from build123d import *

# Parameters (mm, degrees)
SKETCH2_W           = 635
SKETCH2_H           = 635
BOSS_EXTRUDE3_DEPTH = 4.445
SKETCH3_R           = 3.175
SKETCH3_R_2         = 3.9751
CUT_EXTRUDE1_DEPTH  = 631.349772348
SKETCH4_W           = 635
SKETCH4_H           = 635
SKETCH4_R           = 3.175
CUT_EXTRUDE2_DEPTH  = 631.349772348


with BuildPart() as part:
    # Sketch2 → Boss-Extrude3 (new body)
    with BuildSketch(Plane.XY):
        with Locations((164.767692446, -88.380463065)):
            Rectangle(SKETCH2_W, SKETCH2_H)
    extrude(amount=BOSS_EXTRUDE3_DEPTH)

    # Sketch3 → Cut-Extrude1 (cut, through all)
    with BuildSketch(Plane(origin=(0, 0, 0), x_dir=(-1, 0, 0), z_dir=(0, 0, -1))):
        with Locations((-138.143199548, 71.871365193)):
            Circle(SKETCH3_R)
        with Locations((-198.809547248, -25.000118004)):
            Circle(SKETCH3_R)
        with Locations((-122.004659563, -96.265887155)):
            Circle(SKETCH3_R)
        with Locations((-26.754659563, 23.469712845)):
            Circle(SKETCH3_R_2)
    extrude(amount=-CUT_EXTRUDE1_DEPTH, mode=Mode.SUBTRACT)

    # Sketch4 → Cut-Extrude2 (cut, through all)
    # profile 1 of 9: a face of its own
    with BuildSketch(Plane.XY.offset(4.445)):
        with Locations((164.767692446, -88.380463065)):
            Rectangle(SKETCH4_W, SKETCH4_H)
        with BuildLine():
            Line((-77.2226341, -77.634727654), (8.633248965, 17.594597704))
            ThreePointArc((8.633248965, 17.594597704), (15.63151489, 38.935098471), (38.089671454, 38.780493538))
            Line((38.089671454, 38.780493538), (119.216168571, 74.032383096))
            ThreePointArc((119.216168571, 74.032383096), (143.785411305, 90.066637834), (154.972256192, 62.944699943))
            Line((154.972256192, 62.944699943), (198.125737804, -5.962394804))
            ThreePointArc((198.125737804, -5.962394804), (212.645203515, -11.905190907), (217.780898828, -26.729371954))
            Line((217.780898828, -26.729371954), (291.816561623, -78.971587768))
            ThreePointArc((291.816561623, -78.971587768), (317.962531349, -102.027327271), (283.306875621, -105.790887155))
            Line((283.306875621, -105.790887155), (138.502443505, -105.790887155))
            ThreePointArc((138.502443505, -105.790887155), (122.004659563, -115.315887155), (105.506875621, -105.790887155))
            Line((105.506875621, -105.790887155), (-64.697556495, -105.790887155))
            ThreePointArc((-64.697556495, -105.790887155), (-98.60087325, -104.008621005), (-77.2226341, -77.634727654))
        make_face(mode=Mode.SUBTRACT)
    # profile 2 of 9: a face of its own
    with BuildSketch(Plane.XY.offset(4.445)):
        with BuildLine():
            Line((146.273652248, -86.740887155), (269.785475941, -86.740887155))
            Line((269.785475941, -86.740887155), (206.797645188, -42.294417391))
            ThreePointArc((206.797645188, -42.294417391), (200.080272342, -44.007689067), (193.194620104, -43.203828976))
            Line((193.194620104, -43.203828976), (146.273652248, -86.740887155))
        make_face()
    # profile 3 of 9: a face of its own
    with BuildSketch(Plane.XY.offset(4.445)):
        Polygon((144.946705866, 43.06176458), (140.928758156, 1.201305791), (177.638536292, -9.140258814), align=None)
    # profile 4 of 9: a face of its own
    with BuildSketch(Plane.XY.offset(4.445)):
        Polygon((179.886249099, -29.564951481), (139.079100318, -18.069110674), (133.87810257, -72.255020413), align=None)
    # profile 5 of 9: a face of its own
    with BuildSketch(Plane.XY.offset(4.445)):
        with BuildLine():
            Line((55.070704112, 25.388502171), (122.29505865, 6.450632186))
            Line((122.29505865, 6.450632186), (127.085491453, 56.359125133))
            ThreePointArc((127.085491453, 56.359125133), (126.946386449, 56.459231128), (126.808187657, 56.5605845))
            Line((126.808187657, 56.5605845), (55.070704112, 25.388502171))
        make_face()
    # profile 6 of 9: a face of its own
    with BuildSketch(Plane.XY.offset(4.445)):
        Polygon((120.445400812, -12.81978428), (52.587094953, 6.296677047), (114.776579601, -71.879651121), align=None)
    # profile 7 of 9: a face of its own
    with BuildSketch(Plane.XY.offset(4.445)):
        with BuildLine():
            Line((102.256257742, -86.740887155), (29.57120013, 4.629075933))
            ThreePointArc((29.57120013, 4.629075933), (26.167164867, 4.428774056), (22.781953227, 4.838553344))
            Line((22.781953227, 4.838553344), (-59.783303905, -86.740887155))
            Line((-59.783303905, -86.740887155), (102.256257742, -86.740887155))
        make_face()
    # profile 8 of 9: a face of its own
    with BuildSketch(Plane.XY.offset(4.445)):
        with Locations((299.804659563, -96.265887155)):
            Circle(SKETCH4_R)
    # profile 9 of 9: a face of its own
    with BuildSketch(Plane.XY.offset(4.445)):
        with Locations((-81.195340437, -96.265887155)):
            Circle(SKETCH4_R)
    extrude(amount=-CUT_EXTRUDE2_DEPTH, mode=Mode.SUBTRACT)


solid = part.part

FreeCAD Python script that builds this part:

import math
import FreeCAD as App
import Part
import Sketcher
Q = App.Units.Quantity


def add_polygon(sketch, points):
    """Adds a closed chain of lines whose ends are joined by coincident constraints."""
    first, n = sketch.GeometryCount, len(points)
    for a, b in zip(points, points[1:] + points[:1]):
        sketch.addGeometry(Part.LineSegment(App.Vector(*a, 0), App.Vector(*b, 0)), False)
    for i in range(n):
        sketch.addConstraint(Sketcher.Constraint("Coincident", first + i, 2, first + (i + 1) % n, 1))

doc = App.newDocument("Part")
body = doc.addObject("PartDesign::Body", "Body")

sketch1 = body.newObject("Sketcher::SketchObject", "Sketch")
sketch1.AttachmentSupport = (doc.getObject("XY_Plane"), [""])
sketch1.MapMode = "FlatFace"
add_polygon(sketch1, [(-153, 229), (-153, -406), (482, -406), (482, 229)])
sketch1.addConstraint([
    Sketcher.Constraint("Vertical", 0),
    Sketcher.Constraint("Horizontal", 1),
    Sketcher.Constraint("Vertical", 2),
    Sketcher.Constraint("Horizontal", 3),
    Sketcher.Constraint("Equal", 3, 0),
    Sketcher.Constraint("DistanceX", 1, 1, 1, 2, Q("25 in")),
    Sketcher.Constraint("DistanceX", 0, 2, -1, 1, 152.732308),
    Sketcher.Constraint("DistanceY", 0, 2, -1, 1, 405.880463),
])
pad1 = body.newObject("PartDesign::Pad", "Pad")
pad1.Profile = sketch1
pad1.Length = Q("0.175 in")

sketch2 = body.newObject("Sketcher::SketchObject", "Sketch001")
sketch2.AttachmentSupport = (doc.getObject("XY_Plane"), [""])
sketch2.MapMode = "FlatFace"
sketch2.addGeometry([
    Part.Circle(App.Vector(138.1, 71.9, 0), App.Vector(0, 0, 1), 3.2),
    Part.Circle(App.Vector(198.8, -25, 0), App.Vector(0, 0, 1), 3.2),
    Part.Circle(App.Vector(122, -96.3, 0), App.Vector(0, 0, 1), 3.2),
    Part.Circle(App.Vector(26.8, 23.5, 0), App.Vector(0, 0, 1), 4),
], False)
sketch2.addConstraint([
    Sketcher.Constraint("Equal", 0, 1),
    Sketcher.Constraint("Equal", 1, 2),
    Sketcher.Constraint("Diameter", 0, Q("0.25 in")),
    Sketcher.Constraint("Diameter", 3, Q("0.313 in")),
    Sketcher.Constraint("DistanceX", 3, 3, 2, 3, Q("3.75 in")),
    Sketcher.Constraint("DistanceY", 2, 3, 3, 3, Q("4.714 in")),
    Sketcher.Constraint("DistanceX", -1, 1, 0, 3, 138.1432),
    Sketcher.Constraint("DistanceY", 1, 3, -1, 1, 25.000118),
    Sketcher.Constraint("DistanceX", -1, 1, 2, 3, 122.00466),
    Sketcher.Constraint("DistanceY", 2, 3, 1, 3, 71.265769),
    Sketcher.Constraint("DistanceY", -1, 1, 0, 3, 71.871365),
    Sketcher.Constraint("DistanceX", -1, 1, 1, 3, 198.809547),
])
pocket1 = body.newObject("PartDesign::Pocket", "Pocket")
pocket1.Profile = sketch2
pocket1.Type = "ThroughAll"
pocket1.Reversed = True

sketch3 = body.newObject("Sketcher::SketchObject", "Sketch002")
sketch3.AttachmentSupport = (doc.getObject("XY_Plane"), [""])
sketch3.MapMode = "FlatFace"
sketch3.AttachmentOffset = App.Placement(App.Vector(0, 0, 0.175 * 25.4), App.Rotation())
add_polygon(sketch3, [(-152.732308, 229.119537), (-152.732308, -405.880463), (482.267692, -405.880463), (482.267692, 229.119537)])
sketch3.addGeometry(Part.ArcOfCircle(Part.Circle(App.Vector(-81.19534, -96.265887, 0), App.Vector(0, 0, 1), 19.05), math.radians(77.963134), math.radians(330)), False)
sketch3.addGeometry(Part.LineSegment(App.Vector(-77.222634, -77.634728, 0), App.Vector(8.633249, 17.594598, 0)), False)
sketch3.addGeometry(Part.ArcOfCircle(Part.Circle(App.Vector(26.75466, 23.469713, 0), App.Vector(0, 0, 1), 19.05), math.radians(53.486388), math.radians(197.963134)), False)
sketch3.addGeometry(Part.LineSegment(App.Vector(38.089671, 38.780494, 0), App.Vector(119.216169, 74.032383, 0)), False)
sketch3.addGeometry(Part.ArcOfCircle(Part.Circle(App.Vector(138.1432, 71.871365, 0), App.Vector(0, 0, 1), 19.05), math.radians(-27.942897), math.radians(173.486388)), False)
sketch3.addGeometry(Part.LineSegment(App.Vector(154.972256, 62.9447, 0), App.Vector(198.125738, -5.962395, 0)), False)
sketch3.addGeometry(Part.ArcOfCircle(Part.Circle(App.Vector(198.809547, -25.000118, 0), App.Vector(0, 0, 1), 19.05), math.radians(-5.208164), math.radians(92.057103)), False)
sketch3.addGeometry(Part.LineSegment(App.Vector(217.780899, -26.729372, 0), App.Vector(291.816562, -78.971588, 0)), False)
sketch3.addGeometry(Part.ArcOfCircle(Part.Circle(App.Vector(299.80466, -96.265887, 0), App.Vector(0, 0, 1), 19.05), math.radians(-150), math.radians(114.791836)), False)
sketch3.addGeometry(Part.LineSegment(App.Vector(283.306876, -105.790887, 0), App.Vector(138.502444, -105.790887, 0)), False)
sketch3.addGeometry(Part.ArcOfCircle(Part.Circle(App.Vector(122.00466, -96.265887, 0), App.Vector(0, 0, 1), 19.05), math.radians(-150), math.radians(-30)), False)
sketch3.addGeometry(Part.LineSegment(App.Vector(105.506876, -105.790887, 0), App.Vector(-64.697556, -105.790887, 0)), False)
sketch3.addGeometry(Part.LineSegment(App.Vector(146.273652, -86.740887, 0), App.Vector(269.785476, -86.740887, 0)), False)
sketch3.addGeometry(Part.LineSegment(App.Vector(269.785476, -86.740887, 0), App.Vector(206.797645, -42.294417, 0)), False)
sketch3.addGeometry(Part.ArcOfCircle(Part.Circle(App.Vector(198.809547, -25.000118, 0), App.Vector(0, 0, 1), 19.05), math.radians(-107.142357), math.radians(-65.208164)), False)
sketch3.addGeometry(Part.LineSegment(App.Vector(193.19462, -43.203829, 0), App.Vector(146.273652, -86.740887, 0)), False)
add_polygon(sketch3, [(144.946706, 43.061765), (140.928758, 1.201306), (177.638536, -9.140259)])
add_polygon(sketch3, [(179.886249, -29.564951), (139.0791, -18.069111), (133.878103, -72.25502)])
sketch3.addGeometry(Part.LineSegment(App.Vector(55.070704, 25.388502, 0), App.Vector(122.295059, 6.450632, 0)), False)
sketch3.addGeometry(Part.LineSegment(App.Vector(122.295059, 6.450632, 0), App.Vector(127.085491, 56.359125, 0)), False)
sketch3.addGeometry(Part.ArcOfCircle(Part.Circle(App.Vector(138.143194, 71.871357, 0), App.Vector(0, 0, 1), 19.04999), math.radians(-126.513612), math.radians(-125.4827)), False)
sketch3.addGeometry(Part.LineSegment(App.Vector(126.808188, 56.560584, 0), App.Vector(55.070704, 25.388502, 0)), False)
add_polygon(sketch3, [(120.445401, -12.819784), (52.587095, 6.296677), (114.77658, -71.879651)])
sketch3.addGeometry(Part.LineSegment(App.Vector(102.256258, -86.740887, 0), App.Vector(29.5712, 4.629076, 0)), False)
sketch3.addGeometry(Part.ArcOfCircle(Part.Circle(App.Vector(26.75466, 23.469713, 0), App.Vector(0, 0, 1), 19.05), math.radians(-102.036866), math.radians(-81.497654)), False)
sketch3.addGeometry(Part.LineSegment(App.Vector(22.781953, 4.838553, 0), App.Vector(-59.783304, -86.740887, 0)), False)
sketch3.addGeometry(Part.LineSegment(App.Vector(-59.783304, -86.740887, 0), App.Vector(102.256258, -86.740887, 0)), False)
sketch3.addGeometry(Part.Circle(App.Vector(299.80466, -96.265887, 0), App.Vector(0, 0, 1), 3.175), False)
sketch3.addGeometry(Part.Circle(App.Vector(-81.19534, -96.265887, 0), App.Vector(0, 0, 1), 3.175), False)
sketch3.addConstraint([
    Sketcher.Constraint("Coincident", 4, 1, 5, 1),
    Sketcher.Constraint("Coincident", 5, 2, 6, 2),
    Sketcher.Constraint("Coincident", 6, 1, 7, 1),
    Sketcher.Constraint("Coincident", 7, 2, 8, 2),
    Sketcher.Constraint("Coincident", 8, 1, 9, 1),
    Sketcher.Constraint("Coincident", 9, 2, 10, 2),
    Sketcher.Constraint("Coincident", 10, 1, 11, 1),
    Sketcher.Constraint("Coincident", 11, 2, 12, 2),
    Sketcher.Constraint("Coincident", 12, 1, 13, 1),
    Sketcher.Constraint("Coincident", 13, 2, 14, 2),
    Sketcher.Constraint("Coincident", 14, 1, 15, 1),
    Sketcher.Constraint("Coincident", 15, 2, 4, 2),
    Sketcher.Constraint("Coincident", 16, 2, 17, 1),
    Sketcher.Constraint("Coincident", 17, 2, 18, 2),
    Sketcher.Constraint("Coincident", 18, 1, 19, 1),
    Sketcher.Constraint("Coincident", 19, 2, 16, 1),
    Sketcher.Constraint("Coincident", 26, 2, 27, 1),
    Sketcher.Constraint("Coincident", 27, 2, 28, 2),
    Sketcher.Constraint("Coincident", 28, 1, 29, 1),
    Sketcher.Constraint("Coincident", 29, 2, 26, 1),
    Sketcher.Constraint("Coincident", 33, 2, 34, 2),
    Sketcher.Constraint("Coincident", 34, 1, 35, 1),
    Sketcher.Constraint("Coincident", 35, 2, 36, 1),
    Sketcher.Constraint("Coincident", 36, 2, 33, 1),
    Sketcher.Constraint("Vertical", 0),
    Sketcher.Constraint("Horizontal", 1),
    Sketcher.Constraint("Vertical", 2),
    Sketcher.Constraint("Horizontal", 3),
    Sketcher.Constraint("Horizontal", 13),
    Sketcher.Constraint("Horizontal", 15),
    Sketcher.Constraint("Horizontal", 16),
    Sketcher.Constraint("Horizontal", 36),
    Sketcher.Constraint("Coincident", 18, 3, 10, 3),
    Sketcher.Constraint("Coincident", 34, 3, 6, 3),
    Sketcher.Constraint("Coincident", 37, 3, 12, 3),
    Sketcher.Constraint("Coincident", 38, 3, 4, 3),
    Sketcher.Constraint("Diameter", 37, Q("0.25 in")),
    Sketcher.Constraint("Diameter", 38, Q("0.25 in")),
    Sketcher.Constraint("DistanceX", 1, 1, 1, 2, Q("25 in")),
    Sketcher.Constraint("DistanceY", 0, 2, 0, 1, Q("25 in")),
    Sketcher.Constraint("Radius", 4, Q("0.75 in")),
    Sketcher.Constraint("Radius", 6, Q("0.75 in")),
    Sketcher.Constraint("Radius", 8, Q("0.75 in")),
    Sketcher.Constraint("Radius", 10, Q("0.75 in")),
    Sketcher.Constraint("Radius", 12, Q("0.75 in")),
    Sketcher.Constraint("Radius", 14, Q("0.75 in")),
    Sketcher.Constraint("Radius", 18, Q("0.75 in")),
    Sketcher.Constraint("Radius", 34, Q("0.75 in")),
    Sketcher.Constraint("DistanceX", 4, 3, 12, 3, Q("15 in")),
    Sketcher.Constraint("DistanceX", 14, 3, 12, 3, Q("7 in")),
    Sketcher.Constraint("DistanceX", 4, 3, 6, 3, Q("4.25 in")),
    Sketcher.Constraint("DistanceY", 12, 1, 16, 2, Q("0.75 in")),
    Sketcher.Constraint("DistanceY", 14, 1, 19, 2, Q("0.75 in")),
    Sketcher.Constraint("DistanceY", 15, 2, 35, 2, Q("0.75 in")),
    Sketcher.Constraint("Radius", 28, 19.04999),
    Sketcher.Constraint("DistanceY", 4, 3, 6, 3, Q("4.714 in")),
    Sketcher.Constraint("DistanceY", 12, 3, 6, 3, Q("4.714 in")),
    Sketcher.Constraint("DistanceY", 14, 3, 6, 3, Q("4.714 in")),
    Sketcher.Constraint("DistanceY", 12, 1, 12, 3, Q("0.375 in")),
    Sketcher.Constraint("DistanceY", 30, 2, 5, 2, Q("0.4448 in")),
    Sketcher.Constraint("DistanceX", 36, 1, 36, 2, 162.039562),
    Sketcher.Constraint("DistanceX", -1, 1, 8, 3, 138.1432),
    Sketcher.Constraint("DistanceY", -1, 1, 8, 1, 62.9447),
    Sketcher.Constraint("DistanceX", -1, 1, 10, 1, 217.780899),
    Sketcher.Constraint("DistanceX", -1, 1, 23, 2, 139.0791),
    Sketcher.Constraint("DistanceX", -1, 1, 32, 2, 120.445401),
    Sketcher.Constraint("DistanceX", -1, 1, 33, 2, 29.5712),
    Sketcher.Constraint("DistanceX", 28, 3, 2, 2, 344.124499),
    Sketcher.Constraint("DistanceY", 12, 3, 11, 2, 17.294299),
    Sketcher.Constraint("DistanceX", 16, 2, 12, 1, 13.5214),
    Sketcher.Constraint("DistanceY", 17, 2, 10, 3, 17.294299),
    Sketcher.Constraint("DistanceY", 9, 2, 20, 2, 7.163701),
    Sketcher.Constraint("DistanceX", 20, 2, 8, 1, 14.043498),
    Sketcher.Constraint("DistanceX", 21, 2, 9, 2, 20.487202),
    Sketcher.Constraint("DistanceY", 22, 2, 8, 3, 28.809601),
    Sketcher.Constraint("DistanceX", 25, 2, 18, 3, 18.923298),
    Sketcher.Constraint("DistanceX", 26, 2, 20, 2, 18.6337),
    Sketcher.Constraint("DistanceY", 28, 1, 7, 2, 17.471799),
    Sketcher.Constraint("DistanceY", 33, 2, 30, 2, 1.667601),
    Sketcher.Constraint("DistanceX", 36, 2, 14, 3, 19.748402),
    Sketcher.Constraint("Distance", 21, 38.138639),
    Sketcher.Constraint("Distance", 25, 62.762979),
    Sketcher.Constraint("Distance", 26, 69.840939),
    Sketcher.Constraint("Distance", 27, 50.137869),
    Sketcher.Constraint("Distance", 33, 116.754391),
    Sketcher.Constraint("DistanceX", 16, 1, 16, 2, 123.511824),
    Sketcher.Constraint("DistanceY", 10, 3, -1, 1, 25.000118),
    Sketcher.Constraint("DistanceX", -1, 1, 6, 1, 38.089671),
    Sketcher.Constraint("DistanceX", -1, 1, 7, 2, 119.216169),
    Sketcher.Constraint("DistanceY", 10, 1, -1, 1, 26.729372),
    Sketcher.Constraint("DistanceX", -1, 1, 18, 1, 193.19462),
    Sketcher.Constraint("DistanceX", -1, 1, 20, 2, 140.928758),
    Sketcher.Constraint("DistanceY", 21, 2, -1, 1, 9.140259),
    Sketcher.Constraint("DistanceY", 23, 2, -1, 1, 18.069111),
    Sketcher.Constraint("DistanceY", 24, 2, -1, 1, 72.25502),
    Sketcher.Constraint("DistanceY", 25, 2, -1, 1, 29.564951),
    Sketcher.Constraint("DistanceX", -1, 1, 27, 2, 127.085491),
    Sketcher.Constraint("DistanceX", -1, 1, 31, 2, 114.77658),
    Sketcher.Constraint("DistanceY", 31, 2, -1, 1, 71.879651),
    Sketcher.Constraint("DistanceY", 10, 3, 6, 3, 48.469831),
    Sketcher.Constraint("DistanceY", 8, 3, 2, 2, 157.248172),
    Sketcher.Constraint("DistanceY", 28, 3, 2, 2, 157.24818),
    Sketcher.Constraint("DistanceY", 4, 3, 4, 1, 18.63116),
    Sketcher.Constraint("DistanceX", 22, 2, 8, 1, 10.02555),
    Sketcher.Constraint("DistanceY", 21, 2, 26, 2, 15.590891),
    Sketcher.Constraint("DistanceY", 29, 2, 6, 1, 13.391991),
    Sketcher.Constraint("DistanceX", 30, 2, 29, 2, 2.483609),
    Sketcher.Constraint("DistanceY", 32, 2, 20, 2, 14.02109),
    Sketcher.Constraint("DistanceY", 34, 1, 6, 3, 18.63116),
])
pocket2 = body.newObject("PartDesign::Pocket", "Pocket001")
pocket2.Profile = sketch3
pocket2.Length = 631.349772

doc.recompute()
